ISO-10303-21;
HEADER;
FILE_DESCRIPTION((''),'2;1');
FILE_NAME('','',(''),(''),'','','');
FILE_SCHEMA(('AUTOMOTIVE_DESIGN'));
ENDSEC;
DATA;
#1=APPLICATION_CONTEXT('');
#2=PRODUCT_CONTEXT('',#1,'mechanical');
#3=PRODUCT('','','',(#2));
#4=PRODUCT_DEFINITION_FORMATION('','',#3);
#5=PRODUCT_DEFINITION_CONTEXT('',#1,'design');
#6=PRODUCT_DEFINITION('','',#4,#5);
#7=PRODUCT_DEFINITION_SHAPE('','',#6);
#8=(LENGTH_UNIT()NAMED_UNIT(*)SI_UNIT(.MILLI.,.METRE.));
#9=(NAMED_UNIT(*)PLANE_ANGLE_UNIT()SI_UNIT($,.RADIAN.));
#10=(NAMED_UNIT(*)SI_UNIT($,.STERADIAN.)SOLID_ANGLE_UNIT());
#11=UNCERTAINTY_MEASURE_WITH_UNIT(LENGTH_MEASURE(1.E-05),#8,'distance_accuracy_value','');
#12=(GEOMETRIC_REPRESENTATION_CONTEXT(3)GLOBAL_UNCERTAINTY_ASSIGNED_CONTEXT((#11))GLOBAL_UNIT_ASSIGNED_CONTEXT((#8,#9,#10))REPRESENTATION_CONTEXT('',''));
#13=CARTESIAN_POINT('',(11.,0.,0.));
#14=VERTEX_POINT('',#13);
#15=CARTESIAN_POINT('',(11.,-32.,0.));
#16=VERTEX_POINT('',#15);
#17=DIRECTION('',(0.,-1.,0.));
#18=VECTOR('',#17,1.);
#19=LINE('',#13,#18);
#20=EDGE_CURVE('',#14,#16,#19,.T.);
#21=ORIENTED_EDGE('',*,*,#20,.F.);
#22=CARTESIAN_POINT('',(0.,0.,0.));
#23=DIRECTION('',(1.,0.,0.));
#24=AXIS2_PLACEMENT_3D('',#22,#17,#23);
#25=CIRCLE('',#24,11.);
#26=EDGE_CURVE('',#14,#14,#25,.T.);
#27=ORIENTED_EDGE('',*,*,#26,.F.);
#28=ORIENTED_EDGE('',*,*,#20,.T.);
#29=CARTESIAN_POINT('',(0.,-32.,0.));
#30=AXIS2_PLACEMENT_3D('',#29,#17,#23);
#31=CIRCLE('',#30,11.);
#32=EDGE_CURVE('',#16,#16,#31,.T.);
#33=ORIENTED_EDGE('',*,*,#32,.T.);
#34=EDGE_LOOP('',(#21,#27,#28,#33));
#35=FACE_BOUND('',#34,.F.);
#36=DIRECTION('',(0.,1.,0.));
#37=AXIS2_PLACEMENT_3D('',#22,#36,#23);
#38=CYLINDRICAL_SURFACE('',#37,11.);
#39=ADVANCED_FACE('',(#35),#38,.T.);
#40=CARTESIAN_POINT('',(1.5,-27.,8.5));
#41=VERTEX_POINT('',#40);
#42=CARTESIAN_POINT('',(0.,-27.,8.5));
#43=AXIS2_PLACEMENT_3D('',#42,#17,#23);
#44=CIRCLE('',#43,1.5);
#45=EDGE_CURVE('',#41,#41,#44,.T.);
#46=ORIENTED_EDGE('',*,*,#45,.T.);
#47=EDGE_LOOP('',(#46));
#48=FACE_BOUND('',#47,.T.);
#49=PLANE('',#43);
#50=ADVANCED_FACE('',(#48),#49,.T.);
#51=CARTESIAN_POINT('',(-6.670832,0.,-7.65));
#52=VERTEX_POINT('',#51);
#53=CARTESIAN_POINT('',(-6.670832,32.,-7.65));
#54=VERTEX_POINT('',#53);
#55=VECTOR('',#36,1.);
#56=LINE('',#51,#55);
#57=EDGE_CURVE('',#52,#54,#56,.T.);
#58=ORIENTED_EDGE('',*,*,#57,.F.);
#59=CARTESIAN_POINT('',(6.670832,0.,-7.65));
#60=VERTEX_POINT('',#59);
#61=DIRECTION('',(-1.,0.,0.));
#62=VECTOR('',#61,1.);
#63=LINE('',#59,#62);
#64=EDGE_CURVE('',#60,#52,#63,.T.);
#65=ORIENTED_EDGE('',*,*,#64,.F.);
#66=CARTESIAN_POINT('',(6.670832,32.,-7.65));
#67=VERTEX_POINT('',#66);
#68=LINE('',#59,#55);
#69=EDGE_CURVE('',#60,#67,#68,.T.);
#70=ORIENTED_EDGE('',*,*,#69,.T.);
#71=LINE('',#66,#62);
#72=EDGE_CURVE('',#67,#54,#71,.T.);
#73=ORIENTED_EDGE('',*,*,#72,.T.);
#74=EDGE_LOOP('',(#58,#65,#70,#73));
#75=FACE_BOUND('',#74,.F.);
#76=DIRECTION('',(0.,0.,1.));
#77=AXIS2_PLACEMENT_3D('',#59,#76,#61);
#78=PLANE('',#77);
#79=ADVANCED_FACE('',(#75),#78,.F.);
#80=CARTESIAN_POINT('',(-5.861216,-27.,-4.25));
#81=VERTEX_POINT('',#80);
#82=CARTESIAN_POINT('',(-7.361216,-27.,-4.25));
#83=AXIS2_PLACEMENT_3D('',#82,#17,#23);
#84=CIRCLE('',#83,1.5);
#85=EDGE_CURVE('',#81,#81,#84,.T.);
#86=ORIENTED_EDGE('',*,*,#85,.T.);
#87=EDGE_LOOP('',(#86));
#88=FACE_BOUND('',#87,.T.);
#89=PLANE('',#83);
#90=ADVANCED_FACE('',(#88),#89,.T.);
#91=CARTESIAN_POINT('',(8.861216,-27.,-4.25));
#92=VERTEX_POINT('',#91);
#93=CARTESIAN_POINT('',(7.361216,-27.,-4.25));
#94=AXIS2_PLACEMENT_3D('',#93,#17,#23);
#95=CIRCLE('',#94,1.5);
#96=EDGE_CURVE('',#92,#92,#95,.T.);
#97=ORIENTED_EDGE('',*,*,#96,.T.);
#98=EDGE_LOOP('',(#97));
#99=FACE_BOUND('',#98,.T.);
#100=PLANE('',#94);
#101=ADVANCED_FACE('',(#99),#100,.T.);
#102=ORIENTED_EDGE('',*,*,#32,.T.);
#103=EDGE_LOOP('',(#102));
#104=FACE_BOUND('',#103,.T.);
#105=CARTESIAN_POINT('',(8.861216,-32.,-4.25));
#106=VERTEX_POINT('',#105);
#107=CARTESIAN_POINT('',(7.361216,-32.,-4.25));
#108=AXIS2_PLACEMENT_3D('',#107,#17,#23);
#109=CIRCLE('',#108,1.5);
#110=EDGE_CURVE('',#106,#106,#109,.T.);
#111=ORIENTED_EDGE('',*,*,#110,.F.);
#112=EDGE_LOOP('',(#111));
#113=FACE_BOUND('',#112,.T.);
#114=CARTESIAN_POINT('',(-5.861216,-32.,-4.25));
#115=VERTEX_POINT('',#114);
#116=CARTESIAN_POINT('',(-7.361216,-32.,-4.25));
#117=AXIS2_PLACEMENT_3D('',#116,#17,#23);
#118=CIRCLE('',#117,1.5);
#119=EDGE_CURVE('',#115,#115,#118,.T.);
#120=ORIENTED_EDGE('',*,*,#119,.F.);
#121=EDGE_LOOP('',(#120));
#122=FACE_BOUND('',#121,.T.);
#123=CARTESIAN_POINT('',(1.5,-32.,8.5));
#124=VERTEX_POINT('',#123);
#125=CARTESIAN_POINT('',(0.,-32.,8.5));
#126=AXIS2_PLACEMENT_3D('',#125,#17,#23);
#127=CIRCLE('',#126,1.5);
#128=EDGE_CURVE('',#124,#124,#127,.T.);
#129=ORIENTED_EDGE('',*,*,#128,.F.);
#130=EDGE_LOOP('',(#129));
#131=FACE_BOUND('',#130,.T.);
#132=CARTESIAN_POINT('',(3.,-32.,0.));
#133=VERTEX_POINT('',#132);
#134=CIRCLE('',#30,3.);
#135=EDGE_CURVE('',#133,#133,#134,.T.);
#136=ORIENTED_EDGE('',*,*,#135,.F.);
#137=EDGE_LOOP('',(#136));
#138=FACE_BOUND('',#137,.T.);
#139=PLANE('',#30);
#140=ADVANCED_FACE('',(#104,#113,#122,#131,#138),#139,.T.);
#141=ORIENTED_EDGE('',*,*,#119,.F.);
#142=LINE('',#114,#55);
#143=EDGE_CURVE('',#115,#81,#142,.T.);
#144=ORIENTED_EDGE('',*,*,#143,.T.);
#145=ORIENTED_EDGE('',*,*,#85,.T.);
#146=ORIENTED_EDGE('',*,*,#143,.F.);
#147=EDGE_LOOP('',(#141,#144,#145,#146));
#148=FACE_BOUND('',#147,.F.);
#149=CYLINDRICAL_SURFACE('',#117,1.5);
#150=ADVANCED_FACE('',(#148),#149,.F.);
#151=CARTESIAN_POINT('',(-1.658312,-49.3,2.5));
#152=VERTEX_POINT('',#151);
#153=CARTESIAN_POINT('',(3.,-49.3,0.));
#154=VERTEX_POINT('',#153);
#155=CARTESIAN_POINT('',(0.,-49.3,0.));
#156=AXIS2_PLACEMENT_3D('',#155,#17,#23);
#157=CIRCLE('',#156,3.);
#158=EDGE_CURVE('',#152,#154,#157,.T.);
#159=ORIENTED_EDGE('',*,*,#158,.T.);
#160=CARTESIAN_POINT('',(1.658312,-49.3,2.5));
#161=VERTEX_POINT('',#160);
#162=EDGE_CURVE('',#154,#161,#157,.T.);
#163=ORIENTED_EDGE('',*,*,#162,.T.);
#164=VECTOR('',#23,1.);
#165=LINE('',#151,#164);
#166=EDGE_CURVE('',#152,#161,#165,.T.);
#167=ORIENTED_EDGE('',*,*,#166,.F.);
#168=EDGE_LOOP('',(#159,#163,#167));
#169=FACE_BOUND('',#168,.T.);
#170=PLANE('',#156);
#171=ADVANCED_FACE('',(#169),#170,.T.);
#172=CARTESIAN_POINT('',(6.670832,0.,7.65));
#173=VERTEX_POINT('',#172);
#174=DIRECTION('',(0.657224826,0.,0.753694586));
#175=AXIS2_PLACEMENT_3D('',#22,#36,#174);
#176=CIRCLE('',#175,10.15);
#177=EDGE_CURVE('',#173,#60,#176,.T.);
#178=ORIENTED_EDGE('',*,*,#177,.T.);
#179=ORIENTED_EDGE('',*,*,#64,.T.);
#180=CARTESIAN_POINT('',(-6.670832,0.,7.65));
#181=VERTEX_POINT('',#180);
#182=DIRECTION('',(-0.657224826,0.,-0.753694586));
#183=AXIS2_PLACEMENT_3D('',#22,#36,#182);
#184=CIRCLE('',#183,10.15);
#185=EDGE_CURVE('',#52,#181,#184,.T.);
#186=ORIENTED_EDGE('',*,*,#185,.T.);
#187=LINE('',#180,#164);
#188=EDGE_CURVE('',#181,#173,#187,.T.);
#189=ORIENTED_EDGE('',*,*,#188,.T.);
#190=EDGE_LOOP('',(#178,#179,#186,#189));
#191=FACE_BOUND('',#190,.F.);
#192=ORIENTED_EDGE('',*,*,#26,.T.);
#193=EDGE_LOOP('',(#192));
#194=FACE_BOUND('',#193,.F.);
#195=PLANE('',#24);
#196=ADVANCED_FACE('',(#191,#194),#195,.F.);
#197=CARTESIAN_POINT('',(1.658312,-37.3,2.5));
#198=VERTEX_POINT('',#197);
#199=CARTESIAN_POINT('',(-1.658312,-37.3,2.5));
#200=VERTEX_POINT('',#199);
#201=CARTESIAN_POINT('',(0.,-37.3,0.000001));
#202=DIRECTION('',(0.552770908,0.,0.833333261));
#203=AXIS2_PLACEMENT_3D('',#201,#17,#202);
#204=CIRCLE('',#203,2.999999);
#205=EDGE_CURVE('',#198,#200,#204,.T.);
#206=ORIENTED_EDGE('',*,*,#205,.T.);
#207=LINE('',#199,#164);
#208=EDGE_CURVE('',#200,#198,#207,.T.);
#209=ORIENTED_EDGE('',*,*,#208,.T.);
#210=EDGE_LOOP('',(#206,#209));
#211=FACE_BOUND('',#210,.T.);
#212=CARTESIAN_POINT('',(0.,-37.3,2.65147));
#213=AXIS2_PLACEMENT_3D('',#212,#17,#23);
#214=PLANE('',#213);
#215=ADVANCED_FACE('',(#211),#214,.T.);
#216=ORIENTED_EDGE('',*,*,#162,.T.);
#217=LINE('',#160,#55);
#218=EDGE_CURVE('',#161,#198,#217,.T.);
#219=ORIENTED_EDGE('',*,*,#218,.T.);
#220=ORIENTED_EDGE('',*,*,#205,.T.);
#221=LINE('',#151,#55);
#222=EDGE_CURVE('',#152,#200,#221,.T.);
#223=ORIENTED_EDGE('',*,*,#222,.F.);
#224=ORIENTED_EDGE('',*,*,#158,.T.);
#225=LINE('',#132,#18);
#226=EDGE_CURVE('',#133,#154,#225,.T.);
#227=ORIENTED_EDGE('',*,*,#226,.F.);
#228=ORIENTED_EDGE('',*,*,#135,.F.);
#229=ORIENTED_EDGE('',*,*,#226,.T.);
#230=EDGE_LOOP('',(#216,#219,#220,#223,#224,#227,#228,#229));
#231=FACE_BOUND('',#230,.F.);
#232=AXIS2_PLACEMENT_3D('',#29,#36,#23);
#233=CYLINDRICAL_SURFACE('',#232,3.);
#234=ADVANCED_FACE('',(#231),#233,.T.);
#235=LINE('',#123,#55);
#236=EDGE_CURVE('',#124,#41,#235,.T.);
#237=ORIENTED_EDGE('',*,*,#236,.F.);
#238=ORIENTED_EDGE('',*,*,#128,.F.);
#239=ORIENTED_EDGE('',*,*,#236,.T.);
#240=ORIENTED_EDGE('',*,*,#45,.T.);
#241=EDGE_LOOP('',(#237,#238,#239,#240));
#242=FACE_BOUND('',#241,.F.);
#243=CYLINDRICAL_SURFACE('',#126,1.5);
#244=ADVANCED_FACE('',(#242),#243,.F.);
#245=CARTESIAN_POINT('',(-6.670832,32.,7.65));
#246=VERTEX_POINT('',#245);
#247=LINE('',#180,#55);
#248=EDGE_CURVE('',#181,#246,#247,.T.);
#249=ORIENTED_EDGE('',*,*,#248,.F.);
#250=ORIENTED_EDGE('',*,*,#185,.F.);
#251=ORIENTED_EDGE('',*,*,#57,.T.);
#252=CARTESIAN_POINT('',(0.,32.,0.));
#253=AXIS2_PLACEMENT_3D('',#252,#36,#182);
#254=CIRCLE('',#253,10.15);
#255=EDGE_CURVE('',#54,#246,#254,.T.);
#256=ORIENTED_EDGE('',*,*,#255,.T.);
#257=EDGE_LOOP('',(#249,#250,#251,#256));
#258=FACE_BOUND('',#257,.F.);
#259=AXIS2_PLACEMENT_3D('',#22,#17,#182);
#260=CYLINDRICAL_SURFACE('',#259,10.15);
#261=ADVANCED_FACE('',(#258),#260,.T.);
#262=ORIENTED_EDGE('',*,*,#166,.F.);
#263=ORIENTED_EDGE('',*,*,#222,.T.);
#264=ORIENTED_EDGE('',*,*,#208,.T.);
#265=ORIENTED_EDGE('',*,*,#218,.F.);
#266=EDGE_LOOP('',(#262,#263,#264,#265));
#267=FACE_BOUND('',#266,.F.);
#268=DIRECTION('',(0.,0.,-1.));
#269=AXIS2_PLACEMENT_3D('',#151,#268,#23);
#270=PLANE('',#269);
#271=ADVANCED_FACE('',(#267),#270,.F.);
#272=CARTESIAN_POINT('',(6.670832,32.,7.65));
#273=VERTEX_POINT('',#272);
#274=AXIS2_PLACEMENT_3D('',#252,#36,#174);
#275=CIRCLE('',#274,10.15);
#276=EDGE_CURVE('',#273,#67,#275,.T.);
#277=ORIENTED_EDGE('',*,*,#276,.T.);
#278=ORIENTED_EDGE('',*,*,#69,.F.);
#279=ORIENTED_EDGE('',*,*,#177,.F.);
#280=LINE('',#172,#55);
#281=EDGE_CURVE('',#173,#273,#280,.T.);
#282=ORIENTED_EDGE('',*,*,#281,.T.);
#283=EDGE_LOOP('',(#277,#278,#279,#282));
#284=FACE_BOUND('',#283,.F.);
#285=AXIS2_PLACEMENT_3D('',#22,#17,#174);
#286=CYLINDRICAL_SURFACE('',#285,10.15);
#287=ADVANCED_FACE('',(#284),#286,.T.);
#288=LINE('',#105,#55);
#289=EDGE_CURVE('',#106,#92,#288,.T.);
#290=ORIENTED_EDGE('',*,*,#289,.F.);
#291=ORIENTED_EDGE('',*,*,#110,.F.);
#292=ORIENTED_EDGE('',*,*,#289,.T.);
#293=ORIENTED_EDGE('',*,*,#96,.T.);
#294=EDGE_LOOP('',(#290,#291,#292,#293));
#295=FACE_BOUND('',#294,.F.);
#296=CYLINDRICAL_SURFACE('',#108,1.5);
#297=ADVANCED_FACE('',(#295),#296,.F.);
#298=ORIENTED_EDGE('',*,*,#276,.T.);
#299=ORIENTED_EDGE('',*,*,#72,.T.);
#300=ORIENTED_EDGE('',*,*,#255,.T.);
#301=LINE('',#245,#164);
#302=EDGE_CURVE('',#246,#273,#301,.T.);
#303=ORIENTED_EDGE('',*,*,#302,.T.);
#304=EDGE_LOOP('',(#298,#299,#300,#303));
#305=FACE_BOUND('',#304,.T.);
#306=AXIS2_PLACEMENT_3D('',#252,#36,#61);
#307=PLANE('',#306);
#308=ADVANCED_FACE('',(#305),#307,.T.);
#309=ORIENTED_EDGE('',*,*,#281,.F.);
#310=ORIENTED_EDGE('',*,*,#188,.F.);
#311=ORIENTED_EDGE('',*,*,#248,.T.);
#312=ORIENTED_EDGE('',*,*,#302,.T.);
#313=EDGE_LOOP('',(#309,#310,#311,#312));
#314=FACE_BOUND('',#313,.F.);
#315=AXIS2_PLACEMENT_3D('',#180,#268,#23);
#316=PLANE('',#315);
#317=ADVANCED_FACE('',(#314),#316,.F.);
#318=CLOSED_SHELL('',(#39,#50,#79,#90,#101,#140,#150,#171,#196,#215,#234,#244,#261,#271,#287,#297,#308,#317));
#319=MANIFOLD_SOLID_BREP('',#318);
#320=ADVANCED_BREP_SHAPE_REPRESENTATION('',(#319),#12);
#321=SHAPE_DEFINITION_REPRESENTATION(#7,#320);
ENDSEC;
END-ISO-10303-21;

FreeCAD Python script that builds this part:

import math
import FreeCAD as App
import Part
import Sketcher
Q = App.Units.Quantity

doc = App.newDocument("Part")
body = doc.addObject("PartDesign::Body", "Body")

sketch1 = body.newObject("Sketcher::SketchObject", "Sketch")
sketch1.AttachmentSupport = (doc.getObject("XZ_Plane"), [""])
sketch1.MapMode = "FlatFace"
sketch1.addGeometry(Part.Circle(App.Vector(0, 0, 0), App.Vector(0, 0, 1), 11), False)
sketch1.addConstraint([
    Sketcher.Constraint("Coincident", 0, 3, -1, 1),
    Sketcher.Constraint("Diameter", 0, Q("22 mm")),
])
pad1 = body.newObject("PartDesign::Pad", "Pad")
pad1.Profile = sketch1
pad1.Length = 32

sketch2 = body.newObject("Sketcher::SketchObject", "Sketch001")
sketch2.AttachmentSupport = (doc.getObject("XZ_Plane"), [""])
sketch2.MapMode = "FlatFace"
sketch2.AttachmentOffset = App.Placement(App.Vector(0, 0, 32), App.Rotation())
sketch2.addGeometry([
    Part.Circle(App.Vector(0, 8.5, 0), App.Vector(0, 0, 1), 1.5),
    Part.Circle(App.Vector(-7.4, -4.2, 0), App.Vector(0, 0, 1), 1.5),
    Part.Circle(App.Vector(7.4, -4.2, 0), App.Vector(0, 0, 1), 1.5),
], False)
sketch2.addConstraint([
    Sketcher.Constraint("Equal", 0, 1),
    Sketcher.Constraint("Equal", 1, 2),
    Sketcher.Constraint("Symmetric", 1, 3, 2, 3, -2),
    Sketcher.Constraint("PointOnObject", 0, 3, -2),
    Sketcher.Constraint("Diameter", 0, Q("3 mm")),
    Sketcher.Constraint("DistanceY", -1, 1, 0, 3, Q("8.5 mm")),
    Sketcher.Constraint("DistanceY", 1, 3, -1, 1, Q("4.25 mm")),
    Sketcher.Constraint("DistanceX", 1, 3, -1, 1, Q("7.361216 mm")),
])
pocket1 = body.newObject("PartDesign::Pocket", "Pocket")
pocket1.Profile = sketch2
pocket1.Length = 5

sketch3 = body.newObject("Sketcher::SketchObject", "Sketch002")
sketch3.AttachmentSupport = (doc.getObject("XZ_Plane"), [""])
sketch3.MapMode = "FlatFace"
sketch3.addGeometry([
    Part.LineSegment(App.Vector(-7, 8, 0), App.Vector(7, 8, 0)),
    Part.ArcOfCircle(Part.Circle(App.Vector(0, 0, 0), App.Vector(0, 0, 1), 10), math.radians(-49), math.radians(49)),
    Part.LineSegment(App.Vector(7, -8, 0), App.Vector(-7, -8, 0)),
    Part.ArcOfCircle(Part.Circle(App.Vector(0, 0, 0), App.Vector(0, 0, 1), 10), math.radians(131), math.radians(229)),
], False)
sketch3.addConstraint([
    Sketcher.Constraint("Coincident", 0, 2, 1, 2),
    Sketcher.Constraint("Coincident", 1, 1, 2, 1),
    Sketcher.Constraint("Coincident", 2, 2, 3, 2),
    Sketcher.Constraint("Coincident", 3, 1, 0, 1),
    Sketcher.Constraint("Horizontal", 0),
    Sketcher.Constraint("Horizontal", 2),
    Sketcher.Constraint("Coincident", 1, 3, -1, 1),
    Sketcher.Constraint("Coincident", 3, 3, -1, 1),
    Sketcher.Constraint("Equal", 1, 3),
    Sketcher.Constraint("Vertical", 0, 2, 1, 1),
    Sketcher.Constraint("Radius", 1, Q("10.15 mm")),
    Sketcher.Constraint("DistanceY", 1, 1, 0, 2, Q("15.3 mm")),
])
pad2 = body.newObject("PartDesign::Pad", "Pad001")
pad2.Profile = sketch3
pad2.Length = 32
pad2.Reversed = True

sketch4 = body.newObject("Sketcher::SketchObject", "Sketch003")
sketch4.AttachmentSupport = (doc.getObject("XZ_Plane"), [""])
sketch4.MapMode = "FlatFace"
sketch4.AttachmentOffset = App.Placement(App.Vector(0, 0, 32), App.Rotation())
sketch4.addGeometry(Part.Circle(App.Vector(0, 0, 0), App.Vector(0, 0, 1), 3), False)
sketch4.addConstraint([
    Sketcher.Constraint("Coincident", 0, 3, -1, 1),
    Sketcher.Constraint("Diameter", 0, Q("6 mm")),
])
pad3 = body.newObject("PartDesign::Pad", "Pad002")
pad3.Profile = sketch4
pad3.Length = 17.3

sketch5 = body.newObject("Sketcher::SketchObject", "Sketch004")
sketch5.AttachmentSupport = (doc.getObject("XZ_Plane"), [""])
sketch5.MapMode = "FlatFace"
sketch5.AttachmentOffset = App.Placement(App.Vector(0, 0, 49.3), App.Rotation())
sketch5.addGeometry([
    Part.ArcOfCircle(Part.Circle(App.Vector(0, 0, 0), App.Vector(0, 0, 1), 3), math.radians(56), math.radians(124)),
    Part.LineSegment(App.Vector(-1.7, 2.5, 0), App.Vector(1.7, 2.5, 0)),
], False)
sketch5.addConstraint([
    Sketcher.Constraint("Coincident", 0, 1, 1, 2),
    Sketcher.Constraint("Coincident", 1, 1, 0, 2),
    Sketcher.Constraint("Horizontal", 1),
    Sketcher.Constraint("Coincident", 0, 3, -1, 1),
    Sketcher.Constraint("Radius", 0, Q("2.999999 mm")),
    Sketcher.Constraint("DistanceY", -1, 1, 0, 1, Q("2.5 mm")),
])
pocket2 = body.newObject("PartDesign::Pocket", "Pocket001")
pocket2.Profile = sketch5
pocket2.Length = 12

doc.recompute()
